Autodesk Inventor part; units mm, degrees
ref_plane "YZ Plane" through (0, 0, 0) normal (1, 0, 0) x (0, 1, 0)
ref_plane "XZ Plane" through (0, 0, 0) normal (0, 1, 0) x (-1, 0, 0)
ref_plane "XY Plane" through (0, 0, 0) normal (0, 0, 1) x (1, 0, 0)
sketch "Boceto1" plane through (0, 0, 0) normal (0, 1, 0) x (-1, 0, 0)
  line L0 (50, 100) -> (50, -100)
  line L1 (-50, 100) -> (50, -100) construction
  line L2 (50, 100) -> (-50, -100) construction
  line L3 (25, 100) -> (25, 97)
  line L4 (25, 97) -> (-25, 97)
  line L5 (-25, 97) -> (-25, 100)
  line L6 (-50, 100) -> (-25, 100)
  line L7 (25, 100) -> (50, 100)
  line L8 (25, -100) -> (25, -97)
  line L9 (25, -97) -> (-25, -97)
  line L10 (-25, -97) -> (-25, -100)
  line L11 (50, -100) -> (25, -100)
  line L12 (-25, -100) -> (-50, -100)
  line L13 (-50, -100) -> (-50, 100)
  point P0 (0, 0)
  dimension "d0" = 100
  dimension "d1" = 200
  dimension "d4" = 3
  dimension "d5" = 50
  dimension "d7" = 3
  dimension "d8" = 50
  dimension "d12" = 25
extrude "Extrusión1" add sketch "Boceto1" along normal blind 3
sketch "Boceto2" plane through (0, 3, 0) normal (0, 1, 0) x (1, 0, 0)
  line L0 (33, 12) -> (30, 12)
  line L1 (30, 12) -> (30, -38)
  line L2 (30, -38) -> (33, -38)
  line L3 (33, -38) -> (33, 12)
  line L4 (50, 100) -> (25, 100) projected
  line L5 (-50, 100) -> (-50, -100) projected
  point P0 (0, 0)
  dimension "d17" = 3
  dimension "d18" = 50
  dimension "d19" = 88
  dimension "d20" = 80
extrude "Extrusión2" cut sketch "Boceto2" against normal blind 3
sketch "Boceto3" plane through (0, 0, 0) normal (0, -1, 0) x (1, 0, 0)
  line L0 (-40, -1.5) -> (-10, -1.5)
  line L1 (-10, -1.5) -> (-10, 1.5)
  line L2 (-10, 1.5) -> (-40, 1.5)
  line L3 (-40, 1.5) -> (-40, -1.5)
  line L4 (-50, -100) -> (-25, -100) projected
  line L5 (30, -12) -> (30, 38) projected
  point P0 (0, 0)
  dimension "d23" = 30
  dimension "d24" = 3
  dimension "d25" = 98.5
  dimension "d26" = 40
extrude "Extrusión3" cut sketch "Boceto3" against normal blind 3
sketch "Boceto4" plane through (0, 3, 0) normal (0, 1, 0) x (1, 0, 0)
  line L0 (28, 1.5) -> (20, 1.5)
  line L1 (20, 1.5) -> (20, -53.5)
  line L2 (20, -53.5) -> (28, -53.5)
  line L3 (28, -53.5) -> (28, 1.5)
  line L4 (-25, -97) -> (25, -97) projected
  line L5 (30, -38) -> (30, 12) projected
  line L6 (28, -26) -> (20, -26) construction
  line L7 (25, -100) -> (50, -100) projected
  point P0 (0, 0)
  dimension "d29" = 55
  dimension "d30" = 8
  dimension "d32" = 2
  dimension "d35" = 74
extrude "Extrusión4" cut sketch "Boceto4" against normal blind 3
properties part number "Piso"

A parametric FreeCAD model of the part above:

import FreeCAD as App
import Part
import Sketcher

V = App.Vector

doc = App.newDocument("Part")
body = doc.addObject("PartDesign::Body", "Body")

sketch1 = body.newObject("Sketcher::SketchObject", "Sketch")
sketch1.AttachmentSupport = (doc.getObject("XZ_Plane"), [""])
sketch1.MapMode = "FlatFace"
sketch1.addGeometry([
    Part.LineSegment(V(-50, -100, 0), V(-50, 100, 0)),
    Part.LineSegment(V(-50, 100, 0), V(-25, 100, 0)),
    Part.LineSegment(V(-25, 100, 0), V(-25, 97, 0)),
    Part.LineSegment(V(-25, 97, 0), V(25, 97, 0)),
    Part.LineSegment(V(25, 97, 0), V(25, 100, 0)),
    Part.LineSegment(V(25, 100, 0), V(50, 100, 0)),
    Part.LineSegment(V(50, 100, 0), V(50, -100, 0)),
    Part.LineSegment(V(50, -100, 0), V(25, -100, 0)),
    Part.LineSegment(V(25, -100, 0), V(25, -97, 0)),
    Part.LineSegment(V(25, -97, 0), V(-25, -97, 0)),
    Part.LineSegment(V(-25, -97, 0), V(-25, -100, 0)),
    Part.LineSegment(V(-25, -100, 0), V(-50, -100, 0)),
], False)
sketch1.addConstraint([
    Sketcher.Constraint("Coincident", 0, 2, 1, 1),
    Sketcher.Constraint("Coincident", 1, 2, 2, 1),
    Sketcher.Constraint("Coincident", 2, 2, 3, 1),
    Sketcher.Constraint("Coincident", 3, 2, 4, 1),
    Sketcher.Constraint("Coincident", 4, 2, 5, 1),
    Sketcher.Constraint("Coincident", 5, 2, 6, 1),
    Sketcher.Constraint("Coincident", 6, 2, 7, 1),
    Sketcher.Constraint("Coincident", 7, 2, 8, 1),
    Sketcher.Constraint("Coincident", 8, 2, 9, 1),
    Sketcher.Constraint("Coincident", 9, 2, 10, 1),
    Sketcher.Constraint("Coincident", 10, 2, 11, 1),
    Sketcher.Constraint("Coincident", 11, 2, 0, 1),
    Sketcher.Constraint("Vertical", 0),
    Sketcher.Constraint("Horizontal", 1),
    Sketcher.Constraint("Vertical", 2),
    Sketcher.Constraint("Horizontal", 3),
    Sketcher.Constraint("Vertical", 4),
    Sketcher.Constraint("Horizontal", 5),
    Sketcher.Constraint("Vertical", 6),
    Sketcher.Constraint("Horizontal", 7),
    Sketcher.Constraint("Vertical", 8),
    Sketcher.Constraint("Horizontal", 9),
    Sketcher.Constraint("Vertical", 10),
    Sketcher.Constraint("Horizontal", 11),
    Sketcher.Constraint("Symmetric", 0, 2, 6, 2, -1, 1),
    Sketcher.Constraint("Symmetric", 2, 2, 8, 2, -1, 1),
    Sketcher.Constraint("Symmetric", 4, 2, 10, 2, -1, 1),
    Sketcher.Constraint("Symmetric", 1, 2, 4, 2, -2),
    Sketcher.Constraint("DistanceX", 1, 1, 1, 2, 25.0),
    Sketcher.Constraint("DistanceX", 3, 1, 3, 2, 50.0),
    Sketcher.Constraint("DistanceY", 0, 1, 0, 2, 200.0),
    Sketcher.Constraint("DistanceY", 2, 2, 2, 1, 3.0),
])
pad1 = body.newObject("PartDesign::Pad", "Pad")
pad1.Profile = sketch1
pad1.Length = 3
pad1.Reversed = True

sketch2 = body.newObject("Sketcher::SketchObject", "Sketch001")
sketch2.AttachmentSupport = (doc.getObject("XZ_Plane"), [""])
sketch2.MapMode = "FlatFace"
sketch2.AttachmentOffset = App.Placement(V(0, 0, -3), App.Rotation())
sketch2.addGeometry([
    Part.LineSegment(V(33, 38, 0), V(33, -12, 0)),
    Part.LineSegment(V(33, -12, 0), V(30, -12, 0)),
    Part.LineSegment(V(30, -12, 0), V(30, 38, 0)),
    Part.LineSegment(V(30, 38, 0), V(33, 38, 0)),
], False)
sketch2.addConstraint([
    Sketcher.Constraint("Coincident", 0, 2, 1, 1),
    Sketcher.Constraint("Coincident", 1, 2, 2, 1),
    Sketcher.Constraint("Coincident", 2, 2, 3, 1),
    Sketcher.Constraint("Coincident", 3, 2, 0, 1),
    Sketcher.Constraint("Vertical", 0),
    Sketcher.Constraint("Horizontal", 1),
    Sketcher.Constraint("Vertical", 2),
    Sketcher.Constraint("Horizontal", 3),
    Sketcher.Constraint("DistanceX", 1, 2, 1, 1, 3.0),
    Sketcher.Constraint("DistanceY", 0, 2, 0, 1, 50.0),
    Sketcher.Constraint("DistanceX", -1, 1, 0, 2, 33.0),
    Sketcher.Constraint("DistanceY", 0, 2, -1, 1, 12.0),
])
pocket1 = body.newObject("PartDesign::Pocket", "Pocket")
pocket1.Profile = sketch2
pocket1.Length = 3
pocket1.Reversed = True

sketch3 = body.newObject("Sketcher::SketchObject", "Sketch002")
sketch3.AttachmentSupport = (doc.getObject("XZ_Plane"), [""])
sketch3.MapMode = "FlatFace"
sketch3.addGeometry([
    Part.LineSegment(V(-40, 1.5, 0), V(-40, -1.5, 0)),
    Part.LineSegment(V(-40, -1.5, 0), V(-10, -1.5, 0)),
    Part.LineSegment(V(-10, -1.5, 0), V(-10, 1.5, 0)),
    Part.LineSegment(V(-10, 1.5, 0), V(-40, 1.5, 0)),
], False)
sketch3.addConstraint([
    Sketcher.Constraint("Coincident", 0, 2, 1, 1),
    Sketcher.Constraint("Coincident", 1, 2, 2, 1),
    Sketcher.Constraint("Coincident", 2, 2, 3, 1),
    Sketcher.Constraint("Coincident", 3, 2, 0, 1),
    Sketcher.Constraint("Vertical", 0),
    Sketcher.Constraint("Horizontal", 1),
    Sketcher.Constraint("Vertical", 2),
    Sketcher.Constraint("Horizontal", 3),
    Sketcher.Constraint("DistanceX", 1, 1, 1, 2, 30.0),
    Sketcher.Constraint("DistanceY", 0, 2, 0, 1, 3.0),
    Sketcher.Constraint("DistanceX", 0, 2, -1, 1, 40.0),
    Sketcher.Constraint("DistanceY", 0, 2, -1, 1, 1.5),
])
pocket2 = body.newObject("PartDesign::Pocket", "Pocket001")
pocket2.Profile = sketch3
pocket2.Length = 3

sketch4 = body.newObject("Sketcher::SketchObject", "Sketch003")
sketch4.AttachmentSupport = (doc.getObject("XZ_Plane"), [""])
sketch4.MapMode = "FlatFace"
sketch4.AttachmentOffset = App.Placement(V(0, 0, -3), App.Rotation())
sketch4.addGeometry([
    Part.LineSegment(V(28, 54, 0), V(28, -2, 0)),
    Part.LineSegment(V(28, -2, 0), V(20, -2, 0)),
    Part.LineSegment(V(20, -2, 0), V(20, 54, 0)),
    Part.LineSegment(V(20, 54, 0), V(28, 54, 0)),
], False)
sketch4.addConstraint([
    Sketcher.Constraint("Coincident", 0, 2, 1, 1),
    Sketcher.Constraint("Coincident", 1, 2, 2, 1),
    Sketcher.Constraint("Coincident", 2, 2, 3, 1),
    Sketcher.Constraint("Coincident", 3, 2, 0, 1),
    Sketcher.Constraint("Vertical", 0),
    Sketcher.Constraint("Horizontal", 1),
    Sketcher.Constraint("Vertical", 2),
    Sketcher.Constraint("Horizontal", 3),
    Sketcher.Constraint("DistanceX", 1, 2, 1, 1, 8.0),
    Sketcher.Constraint("DistanceY", 0, 2, 0, 1, 55.0),
    Sketcher.Constraint("DistanceX", -1, 1, 0, 2, 28.0),
    Sketcher.Constraint("DistanceY", 0, 2, -1, 1, 1.5),
])
pocket3 = body.newObject("PartDesign::Pocket", "Pocket002")
pocket3.Profile = sketch4
pocket3.Length = 3
pocket3.Reversed = True

doc.recompute()
